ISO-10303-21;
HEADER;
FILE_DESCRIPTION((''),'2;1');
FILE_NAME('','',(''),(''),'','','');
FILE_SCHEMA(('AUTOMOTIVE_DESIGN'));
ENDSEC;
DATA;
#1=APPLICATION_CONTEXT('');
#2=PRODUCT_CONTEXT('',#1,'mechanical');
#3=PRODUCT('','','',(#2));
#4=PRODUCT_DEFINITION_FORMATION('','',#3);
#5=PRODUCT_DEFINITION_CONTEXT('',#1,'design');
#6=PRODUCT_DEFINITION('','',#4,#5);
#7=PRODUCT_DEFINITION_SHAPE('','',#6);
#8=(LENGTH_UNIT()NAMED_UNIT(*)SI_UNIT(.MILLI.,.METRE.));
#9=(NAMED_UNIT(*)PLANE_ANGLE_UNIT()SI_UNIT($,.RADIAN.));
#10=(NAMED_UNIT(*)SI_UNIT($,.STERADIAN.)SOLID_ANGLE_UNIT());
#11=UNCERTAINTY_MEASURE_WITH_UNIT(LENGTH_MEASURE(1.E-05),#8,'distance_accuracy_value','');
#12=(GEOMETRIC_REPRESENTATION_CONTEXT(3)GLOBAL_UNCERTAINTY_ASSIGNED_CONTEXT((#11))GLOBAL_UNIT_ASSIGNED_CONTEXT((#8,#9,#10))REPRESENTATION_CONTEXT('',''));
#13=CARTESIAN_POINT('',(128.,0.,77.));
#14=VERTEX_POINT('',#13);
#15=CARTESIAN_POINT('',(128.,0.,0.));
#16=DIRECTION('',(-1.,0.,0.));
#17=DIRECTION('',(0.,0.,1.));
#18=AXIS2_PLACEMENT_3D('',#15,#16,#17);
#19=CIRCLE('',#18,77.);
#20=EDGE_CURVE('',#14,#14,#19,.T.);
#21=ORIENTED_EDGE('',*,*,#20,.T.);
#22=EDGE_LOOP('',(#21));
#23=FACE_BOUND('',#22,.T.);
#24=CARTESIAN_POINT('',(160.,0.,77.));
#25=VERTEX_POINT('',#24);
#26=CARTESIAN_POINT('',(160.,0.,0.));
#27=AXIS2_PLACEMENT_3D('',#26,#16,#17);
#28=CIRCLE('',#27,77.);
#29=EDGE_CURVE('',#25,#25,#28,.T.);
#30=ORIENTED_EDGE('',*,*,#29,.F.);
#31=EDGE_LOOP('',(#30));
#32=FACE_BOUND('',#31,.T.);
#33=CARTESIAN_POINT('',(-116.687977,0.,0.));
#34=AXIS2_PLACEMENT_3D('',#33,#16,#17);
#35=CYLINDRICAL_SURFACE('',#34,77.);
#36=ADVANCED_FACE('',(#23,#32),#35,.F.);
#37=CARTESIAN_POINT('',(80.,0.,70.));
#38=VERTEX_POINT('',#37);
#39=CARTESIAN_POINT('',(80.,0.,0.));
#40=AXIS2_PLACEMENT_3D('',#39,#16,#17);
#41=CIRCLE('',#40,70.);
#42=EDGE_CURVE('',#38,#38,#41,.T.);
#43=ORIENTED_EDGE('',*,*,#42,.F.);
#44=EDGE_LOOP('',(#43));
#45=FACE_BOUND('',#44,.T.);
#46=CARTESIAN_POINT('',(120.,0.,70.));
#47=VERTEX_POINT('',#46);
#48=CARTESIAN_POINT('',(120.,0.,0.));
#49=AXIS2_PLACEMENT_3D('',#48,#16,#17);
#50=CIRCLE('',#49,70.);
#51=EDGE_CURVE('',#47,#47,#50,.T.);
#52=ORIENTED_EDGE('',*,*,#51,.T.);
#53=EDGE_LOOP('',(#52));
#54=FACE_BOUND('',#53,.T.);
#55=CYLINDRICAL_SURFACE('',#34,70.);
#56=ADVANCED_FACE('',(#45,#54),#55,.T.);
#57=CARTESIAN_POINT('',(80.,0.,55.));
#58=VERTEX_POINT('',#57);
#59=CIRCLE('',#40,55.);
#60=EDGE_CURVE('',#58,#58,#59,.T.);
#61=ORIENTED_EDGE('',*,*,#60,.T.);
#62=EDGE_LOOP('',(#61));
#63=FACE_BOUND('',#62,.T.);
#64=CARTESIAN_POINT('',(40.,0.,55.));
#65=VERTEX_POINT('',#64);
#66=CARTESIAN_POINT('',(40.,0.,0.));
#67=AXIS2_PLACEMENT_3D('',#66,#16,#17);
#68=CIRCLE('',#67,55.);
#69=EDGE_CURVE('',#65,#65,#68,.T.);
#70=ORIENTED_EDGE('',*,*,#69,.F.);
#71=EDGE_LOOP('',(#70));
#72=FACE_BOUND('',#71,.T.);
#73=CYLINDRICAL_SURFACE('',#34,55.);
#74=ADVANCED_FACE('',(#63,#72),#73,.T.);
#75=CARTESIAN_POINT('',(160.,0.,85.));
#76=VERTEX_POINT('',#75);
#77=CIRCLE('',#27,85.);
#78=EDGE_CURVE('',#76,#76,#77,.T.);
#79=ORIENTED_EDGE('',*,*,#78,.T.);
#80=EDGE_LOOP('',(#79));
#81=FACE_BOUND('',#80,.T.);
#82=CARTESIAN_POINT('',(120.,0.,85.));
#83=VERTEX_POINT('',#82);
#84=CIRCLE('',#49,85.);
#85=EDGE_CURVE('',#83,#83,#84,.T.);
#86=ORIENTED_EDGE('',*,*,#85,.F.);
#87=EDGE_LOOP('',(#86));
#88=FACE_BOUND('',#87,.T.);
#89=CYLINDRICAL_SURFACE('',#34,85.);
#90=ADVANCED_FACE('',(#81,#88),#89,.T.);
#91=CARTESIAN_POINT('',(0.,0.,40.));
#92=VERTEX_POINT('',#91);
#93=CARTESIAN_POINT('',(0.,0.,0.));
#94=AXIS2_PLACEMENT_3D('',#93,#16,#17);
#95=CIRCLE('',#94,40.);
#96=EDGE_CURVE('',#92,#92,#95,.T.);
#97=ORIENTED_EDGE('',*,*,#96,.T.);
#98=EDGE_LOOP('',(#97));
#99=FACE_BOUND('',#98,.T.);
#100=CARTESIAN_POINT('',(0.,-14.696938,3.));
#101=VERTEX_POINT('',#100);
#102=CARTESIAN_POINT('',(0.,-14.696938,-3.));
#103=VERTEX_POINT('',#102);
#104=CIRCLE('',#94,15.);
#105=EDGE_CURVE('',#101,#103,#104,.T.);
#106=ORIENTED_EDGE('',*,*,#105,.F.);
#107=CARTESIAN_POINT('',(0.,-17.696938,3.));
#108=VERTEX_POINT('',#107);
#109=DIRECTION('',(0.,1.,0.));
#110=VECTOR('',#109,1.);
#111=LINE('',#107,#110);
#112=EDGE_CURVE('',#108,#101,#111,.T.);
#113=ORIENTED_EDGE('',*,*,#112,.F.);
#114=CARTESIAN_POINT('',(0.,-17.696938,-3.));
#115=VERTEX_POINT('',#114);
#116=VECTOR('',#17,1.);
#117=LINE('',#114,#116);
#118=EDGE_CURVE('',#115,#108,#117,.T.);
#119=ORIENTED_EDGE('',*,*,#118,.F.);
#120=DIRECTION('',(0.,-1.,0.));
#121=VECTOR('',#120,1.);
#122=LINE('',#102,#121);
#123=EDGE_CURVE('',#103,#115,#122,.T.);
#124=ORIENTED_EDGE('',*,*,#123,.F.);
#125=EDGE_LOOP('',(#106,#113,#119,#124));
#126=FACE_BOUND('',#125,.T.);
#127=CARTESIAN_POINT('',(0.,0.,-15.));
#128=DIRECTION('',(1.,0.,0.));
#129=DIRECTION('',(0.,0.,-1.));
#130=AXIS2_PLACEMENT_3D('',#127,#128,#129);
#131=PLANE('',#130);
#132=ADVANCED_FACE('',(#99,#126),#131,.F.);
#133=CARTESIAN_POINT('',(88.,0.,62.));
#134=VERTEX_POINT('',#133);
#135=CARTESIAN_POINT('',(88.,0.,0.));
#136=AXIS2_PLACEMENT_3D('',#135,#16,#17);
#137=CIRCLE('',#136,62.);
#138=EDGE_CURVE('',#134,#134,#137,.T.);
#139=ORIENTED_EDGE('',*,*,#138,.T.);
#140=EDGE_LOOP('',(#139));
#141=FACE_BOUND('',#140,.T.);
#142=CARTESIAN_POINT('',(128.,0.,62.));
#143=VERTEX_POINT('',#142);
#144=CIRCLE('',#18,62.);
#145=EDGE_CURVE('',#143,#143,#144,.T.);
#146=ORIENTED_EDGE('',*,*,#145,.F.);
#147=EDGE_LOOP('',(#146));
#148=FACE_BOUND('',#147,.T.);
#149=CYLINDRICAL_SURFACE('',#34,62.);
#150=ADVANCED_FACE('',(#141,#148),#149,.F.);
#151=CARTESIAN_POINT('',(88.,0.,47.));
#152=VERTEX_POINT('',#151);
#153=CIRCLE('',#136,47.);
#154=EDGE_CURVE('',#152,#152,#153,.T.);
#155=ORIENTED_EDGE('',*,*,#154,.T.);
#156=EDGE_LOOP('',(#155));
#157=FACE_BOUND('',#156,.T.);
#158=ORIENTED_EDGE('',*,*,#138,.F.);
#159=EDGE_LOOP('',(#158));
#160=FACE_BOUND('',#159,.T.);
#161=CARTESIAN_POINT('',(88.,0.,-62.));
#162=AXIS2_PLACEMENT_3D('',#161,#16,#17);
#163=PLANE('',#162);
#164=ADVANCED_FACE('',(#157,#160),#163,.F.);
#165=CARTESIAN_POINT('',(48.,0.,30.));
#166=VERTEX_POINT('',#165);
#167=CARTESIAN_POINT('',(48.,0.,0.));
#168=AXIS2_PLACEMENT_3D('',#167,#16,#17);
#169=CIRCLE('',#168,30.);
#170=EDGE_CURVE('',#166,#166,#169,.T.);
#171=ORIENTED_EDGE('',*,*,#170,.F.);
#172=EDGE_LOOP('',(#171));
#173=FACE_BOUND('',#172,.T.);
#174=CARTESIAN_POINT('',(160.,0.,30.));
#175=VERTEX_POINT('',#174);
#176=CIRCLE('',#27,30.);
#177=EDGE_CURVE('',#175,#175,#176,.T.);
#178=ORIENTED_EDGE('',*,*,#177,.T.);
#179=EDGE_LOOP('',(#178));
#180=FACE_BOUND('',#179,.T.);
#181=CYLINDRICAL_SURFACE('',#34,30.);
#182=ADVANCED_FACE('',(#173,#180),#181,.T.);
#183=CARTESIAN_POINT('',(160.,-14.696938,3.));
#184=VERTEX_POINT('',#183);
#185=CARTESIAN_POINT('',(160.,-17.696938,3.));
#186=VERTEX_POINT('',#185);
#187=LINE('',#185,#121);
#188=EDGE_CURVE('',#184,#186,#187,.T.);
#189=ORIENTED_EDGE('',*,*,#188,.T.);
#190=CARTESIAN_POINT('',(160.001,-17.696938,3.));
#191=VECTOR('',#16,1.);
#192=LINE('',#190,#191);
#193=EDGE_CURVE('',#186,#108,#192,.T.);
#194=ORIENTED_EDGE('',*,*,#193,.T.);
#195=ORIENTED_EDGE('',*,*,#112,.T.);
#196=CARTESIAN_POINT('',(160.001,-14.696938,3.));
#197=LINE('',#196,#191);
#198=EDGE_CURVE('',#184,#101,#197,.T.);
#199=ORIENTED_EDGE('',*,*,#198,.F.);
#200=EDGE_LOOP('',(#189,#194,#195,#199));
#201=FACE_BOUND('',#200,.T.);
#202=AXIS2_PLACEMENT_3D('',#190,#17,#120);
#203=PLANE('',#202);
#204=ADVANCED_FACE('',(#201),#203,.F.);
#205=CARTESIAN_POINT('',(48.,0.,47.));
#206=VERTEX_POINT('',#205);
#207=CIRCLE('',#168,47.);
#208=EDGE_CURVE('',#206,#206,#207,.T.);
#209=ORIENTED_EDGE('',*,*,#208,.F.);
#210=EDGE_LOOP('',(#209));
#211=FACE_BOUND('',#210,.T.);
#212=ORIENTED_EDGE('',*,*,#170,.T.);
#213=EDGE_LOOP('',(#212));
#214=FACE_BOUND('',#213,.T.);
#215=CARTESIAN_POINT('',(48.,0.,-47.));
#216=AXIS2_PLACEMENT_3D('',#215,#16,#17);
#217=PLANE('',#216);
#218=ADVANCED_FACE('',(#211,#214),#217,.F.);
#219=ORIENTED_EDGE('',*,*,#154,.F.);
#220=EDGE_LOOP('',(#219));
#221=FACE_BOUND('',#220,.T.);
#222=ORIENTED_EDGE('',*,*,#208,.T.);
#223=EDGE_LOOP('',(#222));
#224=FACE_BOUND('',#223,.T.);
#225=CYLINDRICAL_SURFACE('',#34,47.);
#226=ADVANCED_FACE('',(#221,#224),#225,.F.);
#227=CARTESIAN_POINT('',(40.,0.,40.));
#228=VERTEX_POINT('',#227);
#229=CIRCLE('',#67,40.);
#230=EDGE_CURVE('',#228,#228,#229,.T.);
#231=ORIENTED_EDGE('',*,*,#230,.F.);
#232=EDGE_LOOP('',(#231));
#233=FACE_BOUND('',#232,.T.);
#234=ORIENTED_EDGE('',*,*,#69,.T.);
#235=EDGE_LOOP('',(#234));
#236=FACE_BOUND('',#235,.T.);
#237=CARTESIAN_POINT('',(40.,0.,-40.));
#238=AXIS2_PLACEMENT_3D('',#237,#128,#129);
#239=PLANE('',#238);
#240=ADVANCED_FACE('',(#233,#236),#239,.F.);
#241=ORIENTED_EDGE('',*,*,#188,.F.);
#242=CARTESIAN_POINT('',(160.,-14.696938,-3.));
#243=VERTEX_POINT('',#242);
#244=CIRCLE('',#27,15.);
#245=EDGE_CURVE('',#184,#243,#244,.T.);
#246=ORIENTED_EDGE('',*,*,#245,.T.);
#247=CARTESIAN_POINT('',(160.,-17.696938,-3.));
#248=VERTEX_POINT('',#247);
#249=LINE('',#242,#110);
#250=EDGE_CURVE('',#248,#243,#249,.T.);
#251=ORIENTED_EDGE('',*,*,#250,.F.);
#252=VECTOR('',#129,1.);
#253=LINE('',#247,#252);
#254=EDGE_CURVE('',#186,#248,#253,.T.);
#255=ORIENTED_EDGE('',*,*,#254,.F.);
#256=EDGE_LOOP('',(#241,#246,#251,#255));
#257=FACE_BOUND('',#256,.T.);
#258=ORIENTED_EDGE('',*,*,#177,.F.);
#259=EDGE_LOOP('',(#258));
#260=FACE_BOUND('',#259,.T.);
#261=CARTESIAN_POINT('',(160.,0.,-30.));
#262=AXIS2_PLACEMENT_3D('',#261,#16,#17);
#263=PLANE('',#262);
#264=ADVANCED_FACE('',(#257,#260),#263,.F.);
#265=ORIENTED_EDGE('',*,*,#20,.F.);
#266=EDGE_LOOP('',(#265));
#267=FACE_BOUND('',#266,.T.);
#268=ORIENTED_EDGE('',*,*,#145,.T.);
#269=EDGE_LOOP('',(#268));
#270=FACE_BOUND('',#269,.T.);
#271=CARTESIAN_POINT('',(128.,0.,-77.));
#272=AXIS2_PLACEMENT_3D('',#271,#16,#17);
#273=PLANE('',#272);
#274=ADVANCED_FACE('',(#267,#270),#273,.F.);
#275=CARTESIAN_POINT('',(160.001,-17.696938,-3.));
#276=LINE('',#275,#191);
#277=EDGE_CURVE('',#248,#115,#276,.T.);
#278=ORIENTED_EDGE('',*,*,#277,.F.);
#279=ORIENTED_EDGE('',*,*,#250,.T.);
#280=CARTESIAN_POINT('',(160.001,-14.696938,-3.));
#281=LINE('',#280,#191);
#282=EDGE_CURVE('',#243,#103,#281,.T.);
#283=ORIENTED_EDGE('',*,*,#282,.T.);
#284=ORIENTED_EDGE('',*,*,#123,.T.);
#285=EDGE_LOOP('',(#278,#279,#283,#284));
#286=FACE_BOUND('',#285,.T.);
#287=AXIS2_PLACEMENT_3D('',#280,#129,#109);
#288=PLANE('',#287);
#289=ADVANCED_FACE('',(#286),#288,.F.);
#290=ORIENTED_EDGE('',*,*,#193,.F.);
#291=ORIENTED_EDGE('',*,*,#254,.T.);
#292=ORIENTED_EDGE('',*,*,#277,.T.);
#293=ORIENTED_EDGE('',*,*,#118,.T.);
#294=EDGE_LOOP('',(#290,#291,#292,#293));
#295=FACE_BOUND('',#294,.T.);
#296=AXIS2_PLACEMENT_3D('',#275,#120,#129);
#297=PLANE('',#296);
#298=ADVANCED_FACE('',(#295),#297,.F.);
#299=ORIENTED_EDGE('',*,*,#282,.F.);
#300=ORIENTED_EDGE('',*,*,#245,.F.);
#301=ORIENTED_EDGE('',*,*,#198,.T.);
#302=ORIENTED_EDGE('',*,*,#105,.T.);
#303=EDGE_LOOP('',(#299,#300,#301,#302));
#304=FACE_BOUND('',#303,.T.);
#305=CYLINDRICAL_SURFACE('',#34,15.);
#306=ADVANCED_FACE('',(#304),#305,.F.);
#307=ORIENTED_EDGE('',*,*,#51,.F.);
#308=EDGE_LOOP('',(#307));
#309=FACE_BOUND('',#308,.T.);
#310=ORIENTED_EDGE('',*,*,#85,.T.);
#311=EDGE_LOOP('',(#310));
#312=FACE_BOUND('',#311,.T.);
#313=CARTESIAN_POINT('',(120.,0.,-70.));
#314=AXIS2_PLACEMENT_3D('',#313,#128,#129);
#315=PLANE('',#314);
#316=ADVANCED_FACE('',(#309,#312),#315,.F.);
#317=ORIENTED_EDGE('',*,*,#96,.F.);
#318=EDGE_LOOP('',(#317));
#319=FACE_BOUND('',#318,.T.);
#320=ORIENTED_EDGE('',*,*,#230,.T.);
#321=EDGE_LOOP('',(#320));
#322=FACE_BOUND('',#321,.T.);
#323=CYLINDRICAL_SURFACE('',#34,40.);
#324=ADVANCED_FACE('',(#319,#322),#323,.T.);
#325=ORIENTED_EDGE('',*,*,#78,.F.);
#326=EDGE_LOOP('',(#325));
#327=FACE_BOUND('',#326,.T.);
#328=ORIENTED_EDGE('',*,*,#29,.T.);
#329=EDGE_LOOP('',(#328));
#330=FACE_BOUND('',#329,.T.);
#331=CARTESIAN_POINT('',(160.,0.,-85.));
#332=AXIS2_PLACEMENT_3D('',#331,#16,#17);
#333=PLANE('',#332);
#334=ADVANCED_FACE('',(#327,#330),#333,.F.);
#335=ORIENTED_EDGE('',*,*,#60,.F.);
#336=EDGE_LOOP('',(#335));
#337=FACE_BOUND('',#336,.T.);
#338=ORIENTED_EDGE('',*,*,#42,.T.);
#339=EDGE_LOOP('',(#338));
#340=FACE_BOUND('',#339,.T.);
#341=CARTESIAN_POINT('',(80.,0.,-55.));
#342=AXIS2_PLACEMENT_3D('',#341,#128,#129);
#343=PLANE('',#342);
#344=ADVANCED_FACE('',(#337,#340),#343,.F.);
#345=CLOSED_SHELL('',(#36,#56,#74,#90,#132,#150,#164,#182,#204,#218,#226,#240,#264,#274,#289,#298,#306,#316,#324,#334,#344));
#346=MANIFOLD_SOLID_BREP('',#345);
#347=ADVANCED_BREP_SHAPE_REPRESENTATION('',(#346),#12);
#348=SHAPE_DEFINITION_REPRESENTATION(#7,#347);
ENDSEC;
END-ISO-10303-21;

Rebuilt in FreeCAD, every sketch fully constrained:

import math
import FreeCAD as App
import Part
import Sketcher

V = App.Vector
Q = App.Units.Quantity

doc = App.newDocument("Part")
body = doc.addObject("PartDesign::Body", "Body")

sketch1 = body.newObject("Sketcher::SketchObject", "Sketch")
sketch1.AttachmentSupport = (doc.getObject("XZ_Plane"), [""])
sketch1.MapMode = "FlatFace"
sketch1.addGeometry([
    Part.LineSegment(V(0, -40, 0), V(0, -15, 0)),
    Part.LineSegment(V(0, -15, 0), V(160, -15, 0)),
    Part.LineSegment(V(160, -15, 0), V(160, -30, 0)),
    Part.LineSegment(V(160, -30, 0), V(48, -30, 0)),
    Part.LineSegment(V(48, -30, 0), V(48, -47, 0)),
    Part.LineSegment(V(48, -47, 0), V(88, -47, 0)),
    Part.LineSegment(V(88, -47, 0), V(88, -62, 0)),
    Part.LineSegment(V(88, -62, 0), V(128, -62, 0)),
    Part.LineSegment(V(128, -62, 0), V(128, -77, 0)),
    Part.LineSegment(V(128, -77, 0), V(160, -77, 0)),
    Part.LineSegment(V(160, -77, 0), V(160, -85, 0)),
    Part.LineSegment(V(160, -85, 0), V(120, -85, 0)),
    Part.LineSegment(V(120, -85, 0), V(120, -70, 0)),
    Part.LineSegment(V(120, -70, 0), V(80, -70, 0)),
    Part.LineSegment(V(80, -70, 0), V(80, -55, 0)),
    Part.LineSegment(V(80, -55, 0), V(40, -55, 0)),
    Part.LineSegment(V(40, -55, 0), V(40, -40, 0)),
    Part.LineSegment(V(40, -40, 0), V(0, -40, 0)),
], False)
sketch1.addConstraint([
    Sketcher.Constraint("Coincident", 0, 2, 1, 1),
    Sketcher.Constraint("Coincident", 1, 2, 2, 1),
    Sketcher.Constraint("Coincident", 2, 2, 3, 1),
    Sketcher.Constraint("Coincident", 3, 2, 4, 1),
    Sketcher.Constraint("Coincident", 4, 2, 5, 1),
    Sketcher.Constraint("Coincident", 5, 2, 6, 1),
    Sketcher.Constraint("Coincident", 6, 2, 7, 1),
    Sketcher.Constraint("Coincident", 7, 2, 8, 1),
    Sketcher.Constraint("Coincident", 8, 2, 9, 1),
    Sketcher.Constraint("Coincident", 9, 2, 10, 1),
    Sketcher.Constraint("Coincident", 10, 2, 11, 1),
    Sketcher.Constraint("Coincident", 11, 2, 12, 1),
    Sketcher.Constraint("Coincident", 12, 2, 13, 1),
    Sketcher.Constraint("Coincident", 13, 2, 14, 1),
    Sketcher.Constraint("Coincident", 14, 2, 15, 1),
    Sketcher.Constraint("Coincident", 15, 2, 16, 1),
    Sketcher.Constraint("Coincident", 16, 2, 17, 1),
    Sketcher.Constraint("Coincident", 17, 2, 0, 1),
    Sketcher.Constraint("Vertical", 0),
    Sketcher.Constraint("Horizontal", 1),
    Sketcher.Constraint("Vertical", 2),
    Sketcher.Constraint("Horizontal", 3),
    Sketcher.Constraint("Vertical", 4),
    Sketcher.Constraint("Horizontal", 5),
    Sketcher.Constraint("Vertical", 6),
    Sketcher.Constraint("Horizontal", 7),
    Sketcher.Constraint("Vertical", 8),
    Sketcher.Constraint("Horizontal", 9),
    Sketcher.Constraint("Vertical", 10),
    Sketcher.Constraint("Horizontal", 11),
    Sketcher.Constraint("Vertical", 12),
    Sketcher.Constraint("Horizontal", 13),
    Sketcher.Constraint("Vertical", 14),
    Sketcher.Constraint("Horizontal", 15),
    Sketcher.Constraint("Vertical", 16),
    Sketcher.Constraint("Horizontal", 17),
    Sketcher.Constraint("PointOnObject", 0, 2, -2),
    Sketcher.Constraint("Vertical", 2, 2, 9, 2),
    Sketcher.Constraint("Equal", 5, 7),
    Sketcher.Constraint("Equal", 7, 11),
    Sketcher.Constraint("Equal", 11, 13),
    Sketcher.Constraint("Equal", 13, 15),
    Sketcher.Constraint("Equal", 15, 17),
    Sketcher.Constraint("Equal", 2, 6),
    Sketcher.Constraint("Equal", 6, 8),
    Sketcher.Constraint("Equal", 8, 12),
    Sketcher.Constraint("Equal", 12, 14),
    Sketcher.Constraint("Equal", 14, 16),
    Sketcher.Constraint("DistanceX", 1, 1, 1, 2, Q("160 mm")),
    Sketcher.Constraint("DistanceX", 3, 2, 3, 1, Q("112 mm")),
    Sketcher.Constraint("DistanceY", 0, 1, 0, 2, Q("25 mm")),
    Sketcher.Constraint("DistanceY", 2, 2, 2, 1, Q("15 mm")),
    Sketcher.Constraint("DistanceY", 4, 2, 4, 1, Q("17 mm")),
    Sketcher.Constraint("DistanceY", 0, 2, -1, 1, Q("15 mm")),
])
revolution = body.newObject("PartDesign::Revolution", "Revolution")
revolution.Profile = sketch1
revolution.ReferenceAxis = (sketch1, ["H_Axis"])
revolution.Angle = 360

sketch2 = body.newObject("Sketcher::SketchObject", "Sketch001")
sketch2.AttachmentSupport = (doc.getObject("YZ_Plane"), [""])
sketch2.MapMode = "FlatFace"
sketch2.addGeometry([
    Part.LineSegment(V(-14.7, -3, 0), V(-17.7, -3, 0)),
    Part.LineSegment(V(-17.7, -3, 0), V(-17.7, 3, 0)),
    Part.LineSegment(V(-17.7, 3, 0), V(-14.7, 3, 0)),
    Part.ArcOfCircle(Part.Circle(V(0, 0, 0), V(0, 0, 1), 15), math.radians(168), math.radians(192)),
], False)
sketch2.addConstraint([
    Sketcher.Constraint("Coincident", 0, 2, 1, 1),
    Sketcher.Constraint("Coincident", 1, 2, 2, 1),
    Sketcher.Constraint("Coincident", 2, 2, 3, 1),
    Sketcher.Constraint("Coincident", 3, 2, 0, 1),
    Sketcher.Constraint("Horizontal", 0),
    Sketcher.Constraint("Vertical", 1),
    Sketcher.Constraint("Horizontal", 2),
    Sketcher.Constraint("Coincident", 3, 3, -1, 1),
    Sketcher.Constraint("Vertical", 2, 2, 3, 2),
    Sketcher.Constraint("Radius", 3, Q("15 mm")),
    Sketcher.Constraint("DistanceX", 0, 2, 0, 1, Q("3 mm")),
    Sketcher.Constraint("DistanceY", 1, 1, 1, 2, Q("6 mm")),
])
pocket1 = body.newObject("PartDesign::Pocket", "Pocket")
pocket1.Profile = sketch2
pocket1.Type = "UpToFirst"
pocket1.Reversed = True

doc.recompute()
